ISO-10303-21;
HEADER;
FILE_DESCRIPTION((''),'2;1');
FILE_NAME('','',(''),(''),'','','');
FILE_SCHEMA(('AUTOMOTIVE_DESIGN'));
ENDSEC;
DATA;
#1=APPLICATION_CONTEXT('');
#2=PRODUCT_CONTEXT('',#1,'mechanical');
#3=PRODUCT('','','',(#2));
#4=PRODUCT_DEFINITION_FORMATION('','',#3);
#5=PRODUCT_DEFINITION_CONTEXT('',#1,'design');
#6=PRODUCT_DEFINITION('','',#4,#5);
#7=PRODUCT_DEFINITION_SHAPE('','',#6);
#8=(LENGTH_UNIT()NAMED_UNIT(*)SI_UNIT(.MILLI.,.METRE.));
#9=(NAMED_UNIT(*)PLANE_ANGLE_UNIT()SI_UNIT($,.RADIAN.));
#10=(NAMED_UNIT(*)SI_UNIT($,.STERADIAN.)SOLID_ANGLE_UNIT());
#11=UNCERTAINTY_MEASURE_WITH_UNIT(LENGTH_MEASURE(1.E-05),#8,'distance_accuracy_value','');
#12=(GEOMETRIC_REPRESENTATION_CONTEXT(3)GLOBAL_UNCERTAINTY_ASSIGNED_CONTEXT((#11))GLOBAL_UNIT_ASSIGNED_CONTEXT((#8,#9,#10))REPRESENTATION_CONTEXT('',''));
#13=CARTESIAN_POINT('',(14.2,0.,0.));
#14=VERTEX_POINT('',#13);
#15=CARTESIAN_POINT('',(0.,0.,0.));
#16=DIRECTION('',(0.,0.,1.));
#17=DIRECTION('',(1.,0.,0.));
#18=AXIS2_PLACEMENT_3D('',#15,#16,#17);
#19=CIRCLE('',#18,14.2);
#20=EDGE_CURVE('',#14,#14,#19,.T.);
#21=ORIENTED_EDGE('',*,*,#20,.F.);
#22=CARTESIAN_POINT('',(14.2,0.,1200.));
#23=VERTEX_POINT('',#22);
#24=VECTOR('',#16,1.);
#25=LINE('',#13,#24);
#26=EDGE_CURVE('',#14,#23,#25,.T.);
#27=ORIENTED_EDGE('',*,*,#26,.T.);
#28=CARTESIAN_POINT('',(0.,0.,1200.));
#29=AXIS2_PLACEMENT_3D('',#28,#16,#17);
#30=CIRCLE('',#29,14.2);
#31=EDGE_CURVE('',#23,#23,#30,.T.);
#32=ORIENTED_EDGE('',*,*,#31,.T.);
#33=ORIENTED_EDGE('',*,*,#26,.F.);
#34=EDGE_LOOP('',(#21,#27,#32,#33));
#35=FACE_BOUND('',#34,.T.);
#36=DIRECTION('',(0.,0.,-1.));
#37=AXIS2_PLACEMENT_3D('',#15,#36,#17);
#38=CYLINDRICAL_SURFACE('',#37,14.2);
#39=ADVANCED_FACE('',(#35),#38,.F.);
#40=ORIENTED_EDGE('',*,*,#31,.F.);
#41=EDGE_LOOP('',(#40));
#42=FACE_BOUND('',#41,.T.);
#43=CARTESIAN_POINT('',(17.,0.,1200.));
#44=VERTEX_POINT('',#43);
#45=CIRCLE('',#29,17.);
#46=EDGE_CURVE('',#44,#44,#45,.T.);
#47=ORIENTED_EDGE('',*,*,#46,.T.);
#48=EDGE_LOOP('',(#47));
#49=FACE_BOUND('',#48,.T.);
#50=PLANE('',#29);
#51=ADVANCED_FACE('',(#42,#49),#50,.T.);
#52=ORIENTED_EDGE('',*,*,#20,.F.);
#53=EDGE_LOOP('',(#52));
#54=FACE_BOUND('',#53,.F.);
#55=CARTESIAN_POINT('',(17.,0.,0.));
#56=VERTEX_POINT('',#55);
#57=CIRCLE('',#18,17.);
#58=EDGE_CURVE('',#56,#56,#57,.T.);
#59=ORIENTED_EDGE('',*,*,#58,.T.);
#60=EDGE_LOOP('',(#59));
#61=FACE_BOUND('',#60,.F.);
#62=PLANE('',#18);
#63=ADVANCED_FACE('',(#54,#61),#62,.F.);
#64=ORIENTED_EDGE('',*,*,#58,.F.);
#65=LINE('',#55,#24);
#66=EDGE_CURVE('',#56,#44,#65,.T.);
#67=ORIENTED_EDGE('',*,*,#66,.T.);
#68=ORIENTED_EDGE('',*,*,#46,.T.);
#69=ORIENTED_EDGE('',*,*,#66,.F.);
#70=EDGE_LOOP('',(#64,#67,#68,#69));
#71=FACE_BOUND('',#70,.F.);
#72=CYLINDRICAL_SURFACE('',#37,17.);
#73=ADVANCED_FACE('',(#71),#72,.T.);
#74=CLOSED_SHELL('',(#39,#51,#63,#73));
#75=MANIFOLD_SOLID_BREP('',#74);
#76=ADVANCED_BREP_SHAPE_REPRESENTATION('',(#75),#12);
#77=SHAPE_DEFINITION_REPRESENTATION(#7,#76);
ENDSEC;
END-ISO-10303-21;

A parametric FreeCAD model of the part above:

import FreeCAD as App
import Part
import Sketcher
from FreeCAD import Vector
Q = App.Units.Quantity

doc = App.newDocument("Part")
body = doc.addObject("PartDesign::Body", "Body")

sketch1 = body.newObject("Sketcher::SketchObject", "Sketch")
sketch1.AttachmentSupport = (doc.getObject("XY_Plane"), [""])
sketch1.MapMode = "FlatFace"
sketch1.addGeometry(Part.Circle(Vector(0, 0, 0), Vector(0, 0, 1), 17), False)
sketch1.addGeometry(Part.Circle(Vector(0, 0, 0), Vector(0, 0, 1), 14), False)
sketch1.addConstraint(Sketcher.Constraint("Coincident", 0, 3, -1, 1))
sketch1.addConstraint(Sketcher.Constraint("Coincident", 1, 3, -1, 1))
sketch1.addConstraint(Sketcher.Constraint("Diameter", 0, Q("34 mm")))
sketch1.addConstraint(Sketcher.Constraint("Diameter", 1, Q("28.4 mm")))
pad1 = body.newObject("PartDesign::Pad", "Pad")
pad1.Profile = sketch1
pad1.Length = 1200

doc.recompute()
